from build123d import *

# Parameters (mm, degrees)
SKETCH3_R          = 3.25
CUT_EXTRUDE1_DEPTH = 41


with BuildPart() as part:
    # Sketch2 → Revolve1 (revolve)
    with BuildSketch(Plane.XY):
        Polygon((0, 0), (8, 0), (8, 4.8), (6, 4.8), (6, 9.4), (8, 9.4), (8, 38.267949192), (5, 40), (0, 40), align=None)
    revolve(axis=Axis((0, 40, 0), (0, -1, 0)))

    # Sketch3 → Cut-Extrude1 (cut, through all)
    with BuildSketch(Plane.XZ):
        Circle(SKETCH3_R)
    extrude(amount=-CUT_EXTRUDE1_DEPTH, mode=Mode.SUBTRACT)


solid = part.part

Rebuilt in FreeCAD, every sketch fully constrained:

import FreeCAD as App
import Part
import Sketcher
from FreeCAD import Vector
Q = App.Units.Quantity

doc = App.newDocument("Part")
params = doc.addObject("Spreadsheet::Sheet", "Params")
for row, (alias, value) in enumerate([
    ("sketch1_width", "8 mm"),
    ("sketch1_width2", "2 mm"),
    ("sketch1_width3", "5 mm"),
    ("sketch1_height", "40 mm"),
    ("sketch1_height2", "4.8 mm"),
    ("revolution_angle", "360 deg"),
    ("sketch2_diameter", "6.5 mm"),
], start=1):
    params.set(f"A{row}", alias)
    params.set(f"B{row}", "=" + value)
    params.setAlias(f"B{row}", alias)

body = doc.addObject("PartDesign::Body", "Body")

# Sketch on XY plane
sketch1 = doc.addObject("Sketcher::SketchObject", "Sketch")
body.addObject(sketch1)
sketch1.AttachmentSupport = (doc.XY_Plane, [""])
sketch1.MapMode = "FlatFace"
sketch1.addGeometry([
    Part.LineSegment(Vector(0, 0, 0), Vector(8, 0, 0)),  # 0
    Part.LineSegment(Vector(8, 0, 0), Vector(8, 4.8, 0)),  # 1
    Part.LineSegment(Vector(8, 4.8, 0), Vector(6, 4.8, 0)),  # 2
    Part.LineSegment(Vector(6, 4.8, 0), Vector(6, 9.4, 0)),  # 3
    Part.LineSegment(Vector(6, 9.4, 0), Vector(8, 9.4, 0)),  # 4
    Part.LineSegment(Vector(8, 9.4, 0), Vector(8, 38.3, 0)),  # 5
    Part.LineSegment(Vector(8, 38.3, 0), Vector(5, 40, 0)),  # 6
    Part.LineSegment(Vector(5, 40, 0), Vector(0, 40, 0)),  # 7
    Part.LineSegment(Vector(0, 40, 0), Vector(0, 0, 0)),  # 8
], False)
sketch1.addConstraint([
    Sketcher.Constraint("Coincident", 0, 2, 1, 1),
    Sketcher.Constraint("Coincident", 1, 2, 2, 1),
    Sketcher.Constraint("Coincident", 2, 2, 3, 1),
    Sketcher.Constraint("Coincident", 3, 2, 4, 1),
    Sketcher.Constraint("Coincident", 4, 2, 5, 1),
    Sketcher.Constraint("Coincident", 5, 2, 6, 1),
    Sketcher.Constraint("Coincident", 6, 2, 7, 1),
    Sketcher.Constraint("Coincident", 7, 2, 8, 1),
    Sketcher.Constraint("Coincident", 8, 2, 0, 1),
    Sketcher.Constraint("Horizontal", 0),
    Sketcher.Constraint("Vertical", 1),
    Sketcher.Constraint("Horizontal", 2),
    Sketcher.Constraint("Vertical", 3),
    Sketcher.Constraint("Horizontal", 4),
    Sketcher.Constraint("Vertical", 5),
    Sketcher.Constraint("Horizontal", 7),
    Sketcher.Constraint("Vertical", 8),
    Sketcher.Constraint("Coincident", 8, 2, -1, 1),
    Sketcher.Constraint("Vertical", 1, 2, 4, 2),
    Sketcher.Constraint("DistanceX", 0, 1, 0, 2, 8.0),
    Sketcher.Constraint("DistanceX", 2, 2, 2, 1, 2.0),
    Sketcher.Constraint("DistanceX", 7, 2, 7, 1, 5.0),
    Sketcher.Constraint("DistanceY", 8, 2, 8, 1, 40.0),
    Sketcher.Constraint("Angle", 6, Q("150 deg")),
    Sketcher.Constraint("DistanceY", 1, 1, 1, 2, 4.8),
    Sketcher.Constraint("DistanceY", 3, 1, 3, 2, 4.6),
])
sketch1.setExpression("Constraints[19]", "Params.sketch1_width")
sketch1.setExpression("Constraints[20]", "Params.sketch1_width2")
sketch1.setExpression("Constraints[21]", "Params.sketch1_width3")
sketch1.setExpression("Constraints[22]", "Params.sketch1_height")
sketch1.setExpression("Constraints[24]", "Params.sketch1_height2")
revolution = doc.addObject("PartDesign::Revolution", "Revolution")
body.addObject(revolution)
revolution.Profile = sketch1
revolution.ReferenceAxis = (sketch1, ["V_Axis"])
revolution.setExpression("Angle", "Params.revolution_angle")

# Sketch on XZ plane
sketch2 = doc.addObject("Sketcher::SketchObject", "Sketch001")
body.addObject(sketch2)
sketch2.AttachmentSupport = (doc.XZ_Plane, [""])
sketch2.MapMode = "FlatFace"
sketch2.addGeometry(Part.Circle(Vector(0, 0, 0), Vector(0, 0, 1), 3.2), False)
sketch2.addConstraint([
    Sketcher.Constraint("Coincident", 0, 3, -1, 1),
    Sketcher.Constraint("Diameter", 0, 6.5),
])
sketch2.setExpression("Constraints[1]", "Params.sketch2_diameter")
pocket1 = doc.addObject("PartDesign::Pocket", "Pocket")
body.addObject(pocket1)
pocket1.Profile = sketch2
pocket1.Type = "ThroughAll"

doc.recompute()
